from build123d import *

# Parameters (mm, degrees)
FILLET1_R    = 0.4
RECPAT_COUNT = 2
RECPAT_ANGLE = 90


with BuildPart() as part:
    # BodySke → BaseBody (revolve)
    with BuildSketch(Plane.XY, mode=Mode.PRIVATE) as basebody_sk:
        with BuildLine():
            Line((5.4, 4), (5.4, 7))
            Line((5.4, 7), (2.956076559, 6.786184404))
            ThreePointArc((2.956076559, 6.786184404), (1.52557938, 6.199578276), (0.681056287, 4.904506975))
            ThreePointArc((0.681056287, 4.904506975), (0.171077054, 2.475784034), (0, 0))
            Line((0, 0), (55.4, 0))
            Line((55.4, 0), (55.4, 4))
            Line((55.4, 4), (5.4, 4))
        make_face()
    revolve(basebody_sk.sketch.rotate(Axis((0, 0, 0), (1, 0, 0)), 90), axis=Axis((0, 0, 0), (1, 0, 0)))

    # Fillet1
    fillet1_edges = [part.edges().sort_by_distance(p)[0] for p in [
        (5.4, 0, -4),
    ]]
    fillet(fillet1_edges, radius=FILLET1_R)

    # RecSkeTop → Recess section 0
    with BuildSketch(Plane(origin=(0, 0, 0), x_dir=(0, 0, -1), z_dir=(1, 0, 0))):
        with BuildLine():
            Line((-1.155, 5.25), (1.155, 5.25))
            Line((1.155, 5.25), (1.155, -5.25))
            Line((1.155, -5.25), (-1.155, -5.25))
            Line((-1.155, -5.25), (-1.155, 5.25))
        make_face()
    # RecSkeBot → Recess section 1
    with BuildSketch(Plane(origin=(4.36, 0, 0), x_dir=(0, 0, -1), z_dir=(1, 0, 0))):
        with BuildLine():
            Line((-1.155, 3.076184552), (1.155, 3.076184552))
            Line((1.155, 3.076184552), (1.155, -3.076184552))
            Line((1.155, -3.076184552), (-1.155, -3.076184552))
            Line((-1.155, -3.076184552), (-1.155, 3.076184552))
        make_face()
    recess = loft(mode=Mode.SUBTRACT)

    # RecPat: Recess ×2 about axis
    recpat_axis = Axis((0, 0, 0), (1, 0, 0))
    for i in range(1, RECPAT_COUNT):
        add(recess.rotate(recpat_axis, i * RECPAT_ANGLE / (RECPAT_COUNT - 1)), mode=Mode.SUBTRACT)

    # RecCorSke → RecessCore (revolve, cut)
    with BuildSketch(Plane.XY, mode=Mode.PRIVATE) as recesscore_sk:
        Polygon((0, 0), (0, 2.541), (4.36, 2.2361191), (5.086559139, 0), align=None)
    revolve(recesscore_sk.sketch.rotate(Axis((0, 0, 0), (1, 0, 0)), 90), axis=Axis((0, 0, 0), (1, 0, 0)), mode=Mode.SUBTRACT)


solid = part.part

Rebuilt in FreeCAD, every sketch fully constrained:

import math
import FreeCAD as App
import Part
import Sketcher

V = App.Vector
Q = App.Units.Quantity


def edges_at(feature, points):
    """Names of the edges that pass closest to the given points."""
    edges = feature.Shape.Edges
    near = lambda p: min(range(len(edges)), key=lambda i: edges[i].distToShape(Part.Vertex(*p))[0])
    return sorted({f"Edge{near(p) + 1}" for p in points})

doc = App.newDocument("Part")
body = doc.addObject("PartDesign::Body", "Body")

# Sketch on XY plane
sketch1 = body.newObject("Sketcher::SketchObject", "Sketch")
sketch1.AttachmentSupport = (doc.getObject("XY_Plane"), [""])
sketch1.MapMode = "FlatFace"
sketch1.addGeometry(Part.LineSegment(V(5.4, 4, 0), V(5.4, 7, 0)), False)
sketch1.addGeometry(Part.LineSegment(V(5.4, 7, 0), V(3, 6.8, 0)), False)
sketch1.addGeometry(Part.ArcOfCircle(Part.Circle(V(3.2, 4.2, 0), V(0, 0, 1), 2.6), math.radians(95), math.radians(164)), False)
sketch1.addGeometry(Part.ArcOfCircle(Part.Circle(V(18, 0, 0), V(0, 0, 1), 18), math.radians(164.19), math.radians(180)), False)
sketch1.addGeometry(Part.LineSegment(V(0, 0, 0), V(55.4, 0, 0)), False)
sketch1.addGeometry(Part.LineSegment(V(55.4, 0, 0), V(55.4, 4, 0)), False)
sketch1.addGeometry(Part.LineSegment(V(55.4, 4, 0), V(5.4, 4, 0)), False)
sketch1.addConstraint(Sketcher.Constraint("Coincident", 0, 2, 1, 1))
sketch1.addConstraint(Sketcher.Constraint("Tangent", 1, 2, 2, 1))
sketch1.addConstraint(Sketcher.Constraint("Tangent", 2, 2, 3, 1))
sketch1.addConstraint(Sketcher.Constraint("Coincident", 3, 2, 4, 1))
sketch1.addConstraint(Sketcher.Constraint("Coincident", 4, 2, 5, 1))
sketch1.addConstraint(Sketcher.Constraint("Coincident", 5, 2, 6, 1))
sketch1.addConstraint(Sketcher.Constraint("Coincident", 6, 2, 0, 1))
sketch1.addConstraint(Sketcher.Constraint("Vertical", 0))
sketch1.addConstraint(Sketcher.Constraint("Horizontal", 4))
sketch1.addConstraint(Sketcher.Constraint("Vertical", 5))
sketch1.addConstraint(Sketcher.Constraint("Horizontal", 6))
sketch1.addConstraint(Sketcher.Constraint("Coincident", 3, 2, -1, 1))
sketch1.addConstraint(Sketcher.Constraint("PointOnObject", 3, 3, -1))
sketch1.addConstraint(Sketcher.Constraint("Radius", 3, Q("18 mm")))
sketch1.addConstraint(Sketcher.Constraint("Radius", 2, Q("2.6 mm")))
sketch1.addConstraint(Sketcher.Constraint("DistanceX", 6, 2, 6, 1, Q("50 mm")))
sketch1.addConstraint(Sketcher.Constraint("DistanceY", 0, 1, 0, 2, Q("3 mm")))
sketch1.addConstraint(Sketcher.Constraint("DistanceY", 5, 1, 5, 2, Q("4 mm")))
sketch1.addConstraint(Sketcher.Constraint("Angle", 1, Q("-175 deg")))
sketch1.addConstraint(Sketcher.Constraint("DistanceX", 4, 1, 4, 2, Q("55.4 mm")))
revolution = body.newObject("PartDesign::Revolution", "Revolution")
revolution.Profile = sketch1
revolution.ReferenceAxis = (sketch1, ["H_Axis"])
revolution.Angle = 360
doc.recompute()

fillet = body.newObject("PartDesign::Fillet", "Fillet")
fillet.Base = (revolution, edges_at(revolution, [(5.4, 0, -4)]))
fillet.Radius = 0.4

# Sketch on YZ plane
sketch2 = body.newObject("Sketcher::SketchObject", "Sketch001")
sketch2.AttachmentSupport = (doc.getObject("YZ_Plane"), [""])
sketch2.MapMode = "FlatFace"
sketch2.addGeometry(Part.LineSegment(V(5.2, -1.2, 0), V(5.2, 1.2, 0)), False)
sketch2.addGeometry(Part.LineSegment(V(5.2, 1.2, 0), V(-5.2, 1.2, 0)), False)
sketch2.addGeometry(Part.LineSegment(V(-5.2, 1.2, 0), V(-5.2, -1.2, 0)), False)
sketch2.addGeometry(Part.LineSegment(V(-5.2, -1.2, 0), V(5.2, -1.2, 0)), False)
sketch2.addConstraint(Sketcher.Constraint("Coincident", 0, 2, 1, 1))
sketch2.addConstraint(Sketcher.Constraint("Coincident", 1, 2, 2, 1))
sketch2.addConstraint(Sketcher.Constraint("Coincident", 2, 2, 3, 1))
sketch2.addConstraint(Sketcher.Constraint("Coincident", 3, 2, 0, 1))
sketch2.addConstraint(Sketcher.Constraint("Vertical", 0))
sketch2.addConstraint(Sketcher.Constraint("Horizontal", 1))
sketch2.addConstraint(Sketcher.Constraint("Vertical", 2))
sketch2.addConstraint(Sketcher.Constraint("Horizontal", 3))
sketch2.addConstraint(Sketcher.Constraint("Symmetric", 0, 2, 2, 2, -1, 1))
sketch2.addConstraint(Sketcher.Constraint("DistanceX", 1, 2, 1, 1, Q("10.5 mm")))
sketch2.addConstraint(Sketcher.Constraint("DistanceY", 0, 1, 0, 2, Q("2.31 mm")))

# Sketch on YZ plane
sketch3 = body.newObject("Sketcher::SketchObject", "Sketch002")
sketch3.AttachmentSupport = (doc.getObject("YZ_Plane"), [""])
sketch3.MapMode = "FlatFace"
sketch3.AttachmentOffset = App.Placement(V(0, 0, 4.36), App.Rotation())
sketch3.addGeometry(Part.LineSegment(V(3.1, -1.2, 0), V(3.1, 1.2, 0)), False)
sketch3.addGeometry(Part.LineSegment(V(3.1, 1.2, 0), V(-3.1, 1.2, 0)), False)
sketch3.addGeometry(Part.LineSegment(V(-3.1, 1.2, 0), V(-3.1, -1.2, 0)), False)
sketch3.addGeometry(Part.LineSegment(V(-3.1, -1.2, 0), V(3.1, -1.2, 0)), False)
sketch3.addConstraint(Sketcher.Constraint("Coincident", 0, 2, 1, 1))
sketch3.addConstraint(Sketcher.Constraint("Coincident", 1, 2, 2, 1))
sketch3.addConstraint(Sketcher.Constraint("Coincident", 2, 2, 3, 1))
sketch3.addConstraint(Sketcher.Constraint("Coincident", 3, 2, 0, 1))
sketch3.addConstraint(Sketcher.Constraint("Vertical", 0))
sketch3.addConstraint(Sketcher.Constraint("Horizontal", 1))
sketch3.addConstraint(Sketcher.Constraint("Vertical", 2))
sketch3.addConstraint(Sketcher.Constraint("Horizontal", 3))
sketch3.addConstraint(Sketcher.Constraint("Symmetric", 0, 2, 2, 2, -1, 1))
sketch3.addConstraint(Sketcher.Constraint("DistanceY", 0, 1, 0, 2, Q("2.31 mm")))
sketch3.addConstraint(Sketcher.Constraint("DistanceX", 1, 2, 1, 1, Q("6.152369 mm")))

subtractiveloft = body.newObject("PartDesign::SubtractiveLoft", "SubtractiveLoft")
subtractiveloft.Profile = sketch2
subtractiveloft.Sections = [sketch3]
doc.recompute()

polarpattern = body.newObject("PartDesign::PolarPattern", "PolarPattern")
polarpattern.Originals = [subtractiveloft]
polarpattern.Axis = (doc.getObject("X_Axis"), [""])
polarpattern.Angle = 90
polarpattern.Occurrences = 2
body.Tip = polarpattern

# Sketch on XY plane
sketch4 = body.newObject("Sketcher::SketchObject", "Sketch003")
sketch4.AttachmentSupport = (doc.getObject("XY_Plane"), [""])
sketch4.MapMode = "FlatFace"
sketch4.addGeometry(Part.LineSegment(V(0, 2.5, 0), V(0, 0, 0)), False)
sketch4.addGeometry(Part.LineSegment(V(0, 0, 0), V(5.1, 0, 0)), False)
sketch4.addGeometry(Part.LineSegment(V(5.1, 0, 0), V(4.4, 2.2, 0)), False)
sketch4.addGeometry(Part.LineSegment(V(4.4, 2.2, 0), V(0, 2.5, 0)), False)
sketch4.addConstraint(Sketcher.Constraint("Coincident", 0, 2, 1, 1))
sketch4.addConstraint(Sketcher.Constraint("Coincident", 1, 2, 2, 1))
sketch4.addConstraint(Sketcher.Constraint("Coincident", 2, 2, 3, 1))
sketch4.addConstraint(Sketcher.Constraint("Coincident", 3, 2, 0, 1))
sketch4.addConstraint(Sketcher.Constraint("Vertical", 0))
sketch4.addConstraint(Sketcher.Constraint("Horizontal", 1))
sketch4.addConstraint(Sketcher.Constraint("Coincident", 0, 2, -1, 1))
sketch4.addConstraint(Sketcher.Constraint("Angle", 2, Q("108 deg")))
sketch4.addConstraint(Sketcher.Constraint("Angle", 3, Q("176 deg")))
sketch4.addConstraint(Sketcher.Constraint("DistanceY", 0, 2, 0, 1, Q("2.541 mm")))
sketch4.addConstraint(Sketcher.Constraint("DistanceX", -1, 1, 2, 2, Q("4.36 mm")))
groove = body.newObject("PartDesign::Groove", "Groove")
groove.Profile = sketch4
groove.ReferenceAxis = (sketch4, ["H_Axis"])
groove.Angle = 360

doc.recompute()
